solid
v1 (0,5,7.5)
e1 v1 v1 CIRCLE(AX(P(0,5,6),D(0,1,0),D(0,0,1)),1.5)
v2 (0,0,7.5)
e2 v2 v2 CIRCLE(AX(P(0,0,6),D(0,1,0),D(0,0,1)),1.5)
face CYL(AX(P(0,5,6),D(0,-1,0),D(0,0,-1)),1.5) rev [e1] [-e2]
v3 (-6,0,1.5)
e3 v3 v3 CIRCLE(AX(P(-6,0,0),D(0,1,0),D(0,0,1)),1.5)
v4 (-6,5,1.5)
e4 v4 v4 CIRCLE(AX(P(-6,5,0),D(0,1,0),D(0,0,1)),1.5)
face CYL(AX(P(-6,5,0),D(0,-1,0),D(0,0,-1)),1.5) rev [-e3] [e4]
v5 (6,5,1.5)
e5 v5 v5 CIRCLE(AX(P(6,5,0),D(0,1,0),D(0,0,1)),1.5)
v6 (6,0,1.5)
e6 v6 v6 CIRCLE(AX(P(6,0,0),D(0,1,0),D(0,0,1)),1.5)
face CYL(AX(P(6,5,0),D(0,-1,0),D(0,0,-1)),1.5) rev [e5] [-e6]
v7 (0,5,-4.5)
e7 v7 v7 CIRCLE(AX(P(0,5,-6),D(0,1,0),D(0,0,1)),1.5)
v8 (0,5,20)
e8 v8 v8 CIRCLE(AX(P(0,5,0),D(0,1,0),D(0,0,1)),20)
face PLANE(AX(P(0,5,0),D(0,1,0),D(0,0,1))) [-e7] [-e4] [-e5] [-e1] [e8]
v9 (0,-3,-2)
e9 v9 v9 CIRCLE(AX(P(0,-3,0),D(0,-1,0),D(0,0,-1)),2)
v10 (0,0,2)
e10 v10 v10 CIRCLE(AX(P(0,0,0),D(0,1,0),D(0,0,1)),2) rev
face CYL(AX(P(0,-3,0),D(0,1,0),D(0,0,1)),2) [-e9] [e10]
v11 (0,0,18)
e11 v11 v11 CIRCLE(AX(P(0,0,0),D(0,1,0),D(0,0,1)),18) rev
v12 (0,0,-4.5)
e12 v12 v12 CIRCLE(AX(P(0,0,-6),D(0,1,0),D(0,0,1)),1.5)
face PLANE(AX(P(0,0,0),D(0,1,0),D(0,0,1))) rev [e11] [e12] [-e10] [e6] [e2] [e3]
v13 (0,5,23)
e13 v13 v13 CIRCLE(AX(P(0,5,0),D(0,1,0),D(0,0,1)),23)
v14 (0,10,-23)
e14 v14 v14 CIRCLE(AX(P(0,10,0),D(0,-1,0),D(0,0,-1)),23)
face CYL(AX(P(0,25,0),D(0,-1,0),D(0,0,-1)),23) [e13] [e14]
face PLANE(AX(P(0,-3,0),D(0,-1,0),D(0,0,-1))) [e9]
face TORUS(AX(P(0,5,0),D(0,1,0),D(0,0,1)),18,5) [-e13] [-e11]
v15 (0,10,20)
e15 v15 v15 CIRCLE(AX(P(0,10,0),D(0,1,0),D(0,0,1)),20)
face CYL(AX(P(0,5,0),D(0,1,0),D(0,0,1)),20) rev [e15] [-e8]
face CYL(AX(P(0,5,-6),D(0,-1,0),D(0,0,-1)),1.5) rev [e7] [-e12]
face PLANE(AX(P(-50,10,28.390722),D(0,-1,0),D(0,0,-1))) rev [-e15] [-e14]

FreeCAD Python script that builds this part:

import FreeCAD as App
import Part
import Sketcher
from FreeCAD import Vector
Q = App.Units.Quantity


def edges_at(feature, points):
    """Names of the edges that pass closest to the given points."""
    edges = feature.Shape.Edges
    near = lambda p: min(range(len(edges)), key=lambda i: edges[i].distToShape(Part.Vertex(*p))[0])
    return sorted({f"Edge{near(p) + 1}" for p in points})

doc = App.newDocument("Part")
body = doc.addObject("PartDesign::Body", "Body")

# Sketch on XZ plane
sketch1 = body.newObject("Sketcher::SketchObject", "Sketch")
sketch1.AttachmentSupport = (doc.getObject("XZ_Plane"), [""])
sketch1.MapMode = "FlatFace"
sketch1.addGeometry(Part.Circle(Vector(0, 0, 0), Vector(0, 0, 1), 23), False)
sketch1.addConstraint(Sketcher.Constraint("Coincident", 0, 3, -1, 1))
sketch1.addConstraint(Sketcher.Constraint("Diameter", 0, Q("46 mm")))
pad1 = body.newObject("PartDesign::Pad", "Pad")
pad1.Profile = sketch1
pad1.Length = 25
pad1.Reversed = True

# Sketch on XZ plane
sketch2 = body.newObject("Sketcher::SketchObject", "Sketch001")
sketch2.AttachmentSupport = (doc.getObject("XZ_Plane"), [""])
sketch2.MapMode = "FlatFace"
sketch2.addGeometry(Part.Circle(Vector(-6, 0, 0), Vector(0, 0, 1), 1.5), False)
sketch2.addGeometry(Part.Circle(Vector(0, -6, 0), Vector(0, 0, 1), 1.5), False)
sketch2.addGeometry(Part.Circle(Vector(6, 0, 0), Vector(0, 0, 1), 1.5), False)
sketch2.addGeometry(Part.Circle(Vector(0, 6, 0), Vector(0, 0, 1), 1.5), False)
sketch2.addConstraint(Sketcher.Constraint("Equal", 0, 1))
sketch2.addConstraint(Sketcher.Constraint("Equal", 1, 2))
sketch2.addConstraint(Sketcher.Constraint("Equal", 2, 3))
sketch2.addConstraint(Sketcher.Constraint("Symmetric", 0, 3, 2, 3, -1, 1))
sketch2.addConstraint(Sketcher.Constraint("Symmetric", 1, 3, 3, 3, -1, 1))
sketch2.addConstraint(Sketcher.Constraint("PointOnObject", 0, 3, -1))
sketch2.addConstraint(Sketcher.Constraint("PointOnObject", 1, 3, -2))
sketch2.addConstraint(Sketcher.Constraint("Diameter", 0, Q("3 mm")))
sketch2.addConstraint(Sketcher.Constraint("DistanceX", 0, 3, -1, 1, Q("6 mm")))
sketch2.addConstraint(Sketcher.Constraint("DistanceY", 1, 3, -1, 1, Q("6 mm")))
pocket1 = body.newObject("PartDesign::Pocket", "Pocket")
pocket1.Profile = sketch2
pocket1.Length = 5

# Sketch on XZ plane
sketch3 = body.newObject("Sketcher::SketchObject", "Sketch002")
sketch3.AttachmentSupport = (doc.getObject("XZ_Plane"), [""])
sketch3.MapMode = "FlatFace"
sketch3.AttachmentOffset = App.Placement(Vector(0, 0, -25), App.Rotation())
sketch3.addGeometry(Part.Circle(Vector(-13.856406, 8, 0), Vector(0, 0, 1), 1.25), False)
sketch3.addGeometry(Part.Circle(Vector(0, -16, 0), Vector(0, 0, 1), 1.25), False)
sketch3.addGeometry(Part.Circle(Vector(13.856406, 8, 0), Vector(0, 0, 1), 1.25), False)
sketch3.addConstraint(Sketcher.Constraint("Equal", 0, 1))
sketch3.addConstraint(Sketcher.Constraint("Equal", 1, 2))
sketch3.addConstraint(Sketcher.Constraint("Symmetric", 0, 3, 2, 3, -2))
sketch3.addConstraint(Sketcher.Constraint("PointOnObject", 1, 3, -2))
sketch3.addConstraint(Sketcher.Constraint("Diameter", 0, Q("2.5 mm")))
sketch3.addConstraint(Sketcher.Constraint("DistanceY", -1, 1, 0, 3, Q("8 mm")))
sketch3.addConstraint(Sketcher.Constraint("DistanceY", 1, 3, -1, 1, Q("16 mm")))
sketch3.addConstraint(Sketcher.Constraint("DistanceX", 0, 3, -1, 1, Q("13.856406 mm")))
pocket2 = body.newObject("PartDesign::Pocket", "Pocket001")
pocket2.Profile = sketch3
pocket2.Length = 5
pocket2.Reversed = True

# Sketch on XZ plane
sketch4 = body.newObject("Sketcher::SketchObject", "Sketch003")
sketch4.AttachmentSupport = (doc.getObject("XZ_Plane"), [""])
sketch4.MapMode = "FlatFace"
sketch4.AttachmentOffset = App.Placement(Vector(0, 0, -25), App.Rotation())
sketch4.addGeometry(Part.Circle(Vector(0, 0, 0), Vector(0, 0, 1), 4), False)
sketch4.addConstraint(Sketcher.Constraint("Coincident", 0, 3, -1, 1))
sketch4.addConstraint(Sketcher.Constraint("Diameter", 0, Q("8 mm")))
pad2 = body.newObject("PartDesign::Pad", "Pad001")
pad2.Profile = sketch4
pad2.Length = 2
pad2.Reversed = True

# Sketch on XZ plane
sketch5 = body.newObject("Sketcher::SketchObject", "Sketch004")
sketch5.AttachmentSupport = (doc.getObject("XZ_Plane"), [""])
sketch5.MapMode = "FlatFace"
sketch5.addGeometry(Part.Circle(Vector(0, 0, 0), Vector(0, 0, 1), 2), False)
sketch5.addConstraint(Sketcher.Constraint("Coincident", 0, 3, -1, 1))
sketch5.addConstraint(Sketcher.Constraint("Diameter", 0, Q("4 mm")))
pad3 = body.newObject("PartDesign::Pad", "Pad002")
pad3.Profile = sketch5
pad3.Length = 3
doc.recompute()

fillet = body.newObject("PartDesign::Fillet", "Fillet")
fillet.Base = (pad3, edges_at(pad3, [(0, 0, -23)]))
fillet.Radius = 5
doc.recompute()

fillet2 = body.newObject("PartDesign::Fillet", "Fillet001")
fillet2.Base = (fillet, edges_at(fillet, [(0, 25, -23)]))
fillet2.Radius = 2

# Sketch on YZ plane
sketch6 = body.newObject("Sketcher::SketchObject", "Sketch005")
sketch6.AttachmentSupport = (doc.getObject("YZ_Plane"), [""])
sketch6.MapMode = "FlatFace"
sketch6.addGeometry(Part.LineSegment(Vector(31.595634, 28.390722, 0), Vector(10, 28.390722, 0)), False)
sketch6.addGeometry(Part.LineSegment(Vector(10, 28.390722, 0), Vector(10, -30.356722, 0)), False)
sketch6.addGeometry(Part.LineSegment(Vector(10, -30.356722, 0), Vector(31.595634, -30.356722, 0)), False)
sketch6.addGeometry(Part.LineSegment(Vector(31.595634, -30.356722, 0), Vector(31.595634, 28.390722, 0)), False)
sketch6.addConstraint(Sketcher.Constraint("Coincident", 0, 2, 1, 1))
sketch6.addConstraint(Sketcher.Constraint("Coincident", 1, 2, 2, 1))
sketch6.addConstraint(Sketcher.Constraint("Coincident", 2, 2, 3, 1))
sketch6.addConstraint(Sketcher.Constraint("Coincident", 3, 2, 0, 1))
sketch6.addConstraint(Sketcher.Constraint("Horizontal", 0))
sketch6.addConstraint(Sketcher.Constraint("Vertical", 1))
sketch6.addConstraint(Sketcher.Constraint("Horizontal", 2))
sketch6.addConstraint(Sketcher.Constraint("Vertical", 3))
sketch6.addConstraint(Sketcher.Constraint("DistanceX", -1, 1, 0, 2, Q("10 mm")))
sketch6.addConstraint(Sketcher.Constraint("DistanceX", 0, 2, 0, 1, Q("21.595634 mm")))
sketch6.addConstraint(Sketcher.Constraint("DistanceY", 1, 2, 1, 1, Q("58.747444 mm")))
sketch6.addConstraint(Sketcher.Constraint("DistanceY", -1, 1, 0, 2, Q("28.390722 mm")))
pocket3 = body.newObject("PartDesign::Pocket", "Pocket002")
pocket3.Profile = sketch6
pocket3.Length = 100
pocket3.Midplane = True

# Sketch on XZ plane
sketch7 = body.newObject("Sketcher::SketchObject", "Sketch006")
sketch7.AttachmentSupport = (doc.getObject("XZ_Plane"), [""])
sketch7.MapMode = "FlatFace"
sketch7.AttachmentOffset = App.Placement(Vector(0, 0, -10), App.Rotation())
sketch7.addGeometry(Part.Circle(Vector(0, 0, 0), Vector(0, 0, 1), 20), False)
sketch7.addConstraint(Sketcher.Constraint("Coincident", 0, 3, -1, 1))
sketch7.addConstraint(Sketcher.Constraint("Diameter", 0, Q("40 mm")))
pocket4 = body.newObject("PartDesign::Pocket", "Pocket003")
pocket4.Profile = sketch7
pocket4.Length = 5
pocket4.Reversed = True

doc.recompute()
